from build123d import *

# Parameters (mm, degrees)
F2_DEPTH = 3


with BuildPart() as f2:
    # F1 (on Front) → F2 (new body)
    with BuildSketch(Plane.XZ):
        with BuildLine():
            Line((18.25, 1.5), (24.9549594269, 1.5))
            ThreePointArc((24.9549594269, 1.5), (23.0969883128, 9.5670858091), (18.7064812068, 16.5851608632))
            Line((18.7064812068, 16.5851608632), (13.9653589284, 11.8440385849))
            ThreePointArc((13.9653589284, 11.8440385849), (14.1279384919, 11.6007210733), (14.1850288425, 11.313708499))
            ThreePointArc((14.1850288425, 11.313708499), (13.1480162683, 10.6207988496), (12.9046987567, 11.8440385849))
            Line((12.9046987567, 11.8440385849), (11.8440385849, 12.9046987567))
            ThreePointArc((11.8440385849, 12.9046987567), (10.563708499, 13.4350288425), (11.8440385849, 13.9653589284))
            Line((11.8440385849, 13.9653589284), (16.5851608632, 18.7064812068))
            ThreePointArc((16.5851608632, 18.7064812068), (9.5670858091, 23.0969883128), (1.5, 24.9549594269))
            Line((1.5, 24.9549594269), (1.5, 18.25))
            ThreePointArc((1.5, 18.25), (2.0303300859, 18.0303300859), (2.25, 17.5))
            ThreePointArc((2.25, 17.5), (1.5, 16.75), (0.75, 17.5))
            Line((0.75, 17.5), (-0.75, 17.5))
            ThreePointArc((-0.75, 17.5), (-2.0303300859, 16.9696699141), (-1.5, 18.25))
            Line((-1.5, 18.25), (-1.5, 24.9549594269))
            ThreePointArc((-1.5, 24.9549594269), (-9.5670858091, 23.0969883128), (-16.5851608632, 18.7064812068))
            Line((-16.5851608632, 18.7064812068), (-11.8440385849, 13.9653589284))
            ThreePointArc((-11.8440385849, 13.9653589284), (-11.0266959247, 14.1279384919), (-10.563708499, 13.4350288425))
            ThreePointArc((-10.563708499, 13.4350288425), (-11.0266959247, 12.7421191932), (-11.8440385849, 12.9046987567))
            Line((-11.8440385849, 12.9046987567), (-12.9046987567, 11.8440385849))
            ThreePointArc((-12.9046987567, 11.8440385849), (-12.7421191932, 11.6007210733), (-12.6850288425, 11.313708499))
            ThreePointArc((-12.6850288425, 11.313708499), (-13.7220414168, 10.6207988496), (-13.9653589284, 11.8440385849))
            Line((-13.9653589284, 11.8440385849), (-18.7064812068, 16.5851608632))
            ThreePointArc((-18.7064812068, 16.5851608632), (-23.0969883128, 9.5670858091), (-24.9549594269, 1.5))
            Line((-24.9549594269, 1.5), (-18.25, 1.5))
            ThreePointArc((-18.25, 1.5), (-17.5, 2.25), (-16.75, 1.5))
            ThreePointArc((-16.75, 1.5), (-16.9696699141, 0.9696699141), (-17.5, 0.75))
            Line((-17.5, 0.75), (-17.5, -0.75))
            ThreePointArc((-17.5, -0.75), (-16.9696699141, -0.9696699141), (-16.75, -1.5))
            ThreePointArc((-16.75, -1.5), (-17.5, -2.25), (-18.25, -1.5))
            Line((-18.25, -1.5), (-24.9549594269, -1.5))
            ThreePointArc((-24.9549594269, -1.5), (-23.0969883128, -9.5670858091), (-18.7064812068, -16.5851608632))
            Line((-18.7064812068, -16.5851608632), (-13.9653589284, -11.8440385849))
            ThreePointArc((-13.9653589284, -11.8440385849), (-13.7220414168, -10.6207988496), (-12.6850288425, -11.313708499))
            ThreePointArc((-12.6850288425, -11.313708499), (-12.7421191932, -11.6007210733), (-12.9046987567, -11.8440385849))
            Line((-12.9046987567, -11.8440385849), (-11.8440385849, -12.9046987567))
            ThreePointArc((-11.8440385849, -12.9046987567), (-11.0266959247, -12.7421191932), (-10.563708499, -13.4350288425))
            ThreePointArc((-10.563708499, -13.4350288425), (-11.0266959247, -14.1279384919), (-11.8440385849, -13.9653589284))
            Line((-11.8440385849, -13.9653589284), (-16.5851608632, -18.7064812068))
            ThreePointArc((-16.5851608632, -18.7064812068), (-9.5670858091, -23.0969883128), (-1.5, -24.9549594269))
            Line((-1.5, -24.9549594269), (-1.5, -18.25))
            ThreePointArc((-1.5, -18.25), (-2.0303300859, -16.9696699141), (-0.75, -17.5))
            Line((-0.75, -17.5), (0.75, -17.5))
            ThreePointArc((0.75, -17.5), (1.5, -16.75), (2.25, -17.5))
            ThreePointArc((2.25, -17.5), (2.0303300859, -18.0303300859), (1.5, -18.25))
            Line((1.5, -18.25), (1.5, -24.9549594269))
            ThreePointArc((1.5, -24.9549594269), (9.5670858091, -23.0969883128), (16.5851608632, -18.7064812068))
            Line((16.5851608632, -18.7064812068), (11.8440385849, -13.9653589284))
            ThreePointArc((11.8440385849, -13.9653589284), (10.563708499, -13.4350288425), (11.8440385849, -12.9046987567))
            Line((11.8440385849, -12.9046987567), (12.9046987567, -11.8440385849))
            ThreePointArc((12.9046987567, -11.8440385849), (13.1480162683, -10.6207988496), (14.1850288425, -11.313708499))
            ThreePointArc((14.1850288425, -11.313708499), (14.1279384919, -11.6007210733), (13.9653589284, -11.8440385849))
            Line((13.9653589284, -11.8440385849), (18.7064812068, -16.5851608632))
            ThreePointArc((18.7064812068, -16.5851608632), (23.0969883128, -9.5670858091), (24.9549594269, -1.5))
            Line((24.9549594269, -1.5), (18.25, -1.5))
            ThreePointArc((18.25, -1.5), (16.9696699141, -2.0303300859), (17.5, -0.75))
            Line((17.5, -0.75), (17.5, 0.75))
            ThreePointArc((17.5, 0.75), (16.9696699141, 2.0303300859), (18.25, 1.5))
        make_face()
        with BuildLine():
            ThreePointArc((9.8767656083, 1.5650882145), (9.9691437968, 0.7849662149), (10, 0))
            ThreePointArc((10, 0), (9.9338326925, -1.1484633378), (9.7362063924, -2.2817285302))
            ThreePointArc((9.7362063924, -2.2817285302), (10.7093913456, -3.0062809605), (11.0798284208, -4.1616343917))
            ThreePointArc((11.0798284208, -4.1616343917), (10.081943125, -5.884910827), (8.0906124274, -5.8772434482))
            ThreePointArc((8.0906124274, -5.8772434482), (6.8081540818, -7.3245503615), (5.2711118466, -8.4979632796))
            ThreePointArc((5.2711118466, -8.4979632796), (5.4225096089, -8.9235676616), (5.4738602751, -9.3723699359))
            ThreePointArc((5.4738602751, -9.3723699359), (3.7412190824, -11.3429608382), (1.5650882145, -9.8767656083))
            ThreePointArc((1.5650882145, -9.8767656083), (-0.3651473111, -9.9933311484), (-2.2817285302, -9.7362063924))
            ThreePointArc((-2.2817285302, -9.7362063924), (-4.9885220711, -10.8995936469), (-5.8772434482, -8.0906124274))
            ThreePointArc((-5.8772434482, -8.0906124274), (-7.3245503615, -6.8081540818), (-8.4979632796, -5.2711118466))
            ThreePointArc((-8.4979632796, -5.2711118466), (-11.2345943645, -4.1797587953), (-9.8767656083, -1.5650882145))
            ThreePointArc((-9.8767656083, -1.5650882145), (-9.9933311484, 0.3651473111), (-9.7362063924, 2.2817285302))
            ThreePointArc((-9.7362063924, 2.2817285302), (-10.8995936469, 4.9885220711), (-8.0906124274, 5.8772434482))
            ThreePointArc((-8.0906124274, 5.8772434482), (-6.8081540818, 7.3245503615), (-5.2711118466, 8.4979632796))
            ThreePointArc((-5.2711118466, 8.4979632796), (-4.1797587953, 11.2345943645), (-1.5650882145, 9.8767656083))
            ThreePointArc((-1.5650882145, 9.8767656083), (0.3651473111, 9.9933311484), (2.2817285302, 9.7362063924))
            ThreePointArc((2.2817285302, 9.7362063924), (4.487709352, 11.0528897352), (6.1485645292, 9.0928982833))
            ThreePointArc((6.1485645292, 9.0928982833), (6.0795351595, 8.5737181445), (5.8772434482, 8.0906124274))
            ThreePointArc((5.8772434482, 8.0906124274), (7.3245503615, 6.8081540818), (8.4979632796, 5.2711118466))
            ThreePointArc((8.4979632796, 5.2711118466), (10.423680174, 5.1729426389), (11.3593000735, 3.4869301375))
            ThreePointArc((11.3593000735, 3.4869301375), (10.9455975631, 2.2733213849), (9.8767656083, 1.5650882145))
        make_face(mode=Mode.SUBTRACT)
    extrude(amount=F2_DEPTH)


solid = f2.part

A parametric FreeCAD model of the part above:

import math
import FreeCAD as App
import Part
import Sketcher

doc = App.newDocument("Part")
body = doc.addObject("PartDesign::Body", "Body")

# Sketch on XZ plane
sketch1 = body.newObject("Sketcher::SketchObject", "Sketch")
sketch1.AttachmentSupport = (doc.getObject("XZ_Plane"), [""])
sketch1.MapMode = "FlatFace"
sketch1.addGeometry(Part.LineSegment(App.Vector(18.2, 1.5, 0), App.Vector(25, 1.5, 0)), False)
sketch1.addGeometry(Part.ArcOfCircle(Part.Circle(App.Vector(0, 0, 0), App.Vector(0, 0, 1), 25), math.radians(3), math.radians(42)), False)
sketch1.addGeometry(Part.LineSegment(App.Vector(18.7, 16.6, 0), App.Vector(14, 11.8, 0)), False)
sketch1.addGeometry(Part.ArcOfCircle(Part.Circle(App.Vector(13.4, 11.3, 0), App.Vector(0, 0, 1), 0.8), math.radians(0), math.radians(45)), False)
sketch1.addGeometry(Part.ArcOfCircle(Part.Circle(App.Vector(13.4, 11.3, 0), App.Vector(0, 0, 1), 0.8), math.radians(135), math.radians(360)), False)
sketch1.addGeometry(Part.LineSegment(App.Vector(12.9, 11.8, 0), App.Vector(11.8, 12.9, 0)), False)
sketch1.addGeometry(Part.ArcOfCircle(Part.Circle(App.Vector(11.3, 13.4, 0), App.Vector(0, 0, 1), 0.8), math.radians(45), math.radians(315)), False)
sketch1.addGeometry(Part.LineSegment(App.Vector(11.8, 14, 0), App.Vector(16.6, 18.7, 0)), False)
sketch1.addGeometry(Part.ArcOfCircle(Part.Circle(App.Vector(0, 0, 0), App.Vector(0, 0, 1), 25), math.radians(48), math.radians(87)), False)
sketch1.addGeometry(Part.LineSegment(App.Vector(1.5, 25, 0), App.Vector(1.5, 18.2, 0)), False)
sketch1.addGeometry(Part.ArcOfCircle(Part.Circle(App.Vector(1.5, 17.5, 0), App.Vector(0, 0, 1), 0.8), math.radians(0), math.radians(90)), False)
sketch1.addGeometry(Part.ArcOfCircle(Part.Circle(App.Vector(1.5, 17.5, 0), App.Vector(0, 0, 1), 0.8), math.radians(180), math.radians(360)), False)
sketch1.addGeometry(Part.LineSegment(App.Vector(0.8, 17.5, 0), App.Vector(-0.8, 17.5, 0)), False)
sketch1.addGeometry(Part.ArcOfCircle(Part.Circle(App.Vector(-1.5, 17.5, 0), App.Vector(0, 0, 1), 0.8), math.radians(90), math.radians(360)), False)
sketch1.addGeometry(Part.LineSegment(App.Vector(-1.5, 18.2, 0), App.Vector(-1.5, 25, 0)), False)
sketch1.addGeometry(Part.ArcOfCircle(Part.Circle(App.Vector(0, 0, 0), App.Vector(0, 0, 1), 25), math.radians(93), math.radians(132)), False)
sketch1.addGeometry(Part.LineSegment(App.Vector(-16.6, 18.7, 0), App.Vector(-11.8, 14, 0)), False)
sketch1.addGeometry(Part.ArcOfCircle(Part.Circle(App.Vector(-11.3, 13.4, 0), App.Vector(0, 0, 1), 0.8), math.radians(0), math.radians(135)), False)
sketch1.addGeometry(Part.ArcOfCircle(Part.Circle(App.Vector(-11.3, 13.4, 0), App.Vector(0, 0, 1), 0.8), math.radians(-135), math.radians(0)), False)
sketch1.addGeometry(Part.LineSegment(App.Vector(-11.8, 12.9, 0), App.Vector(-12.9, 11.8, 0)), False)
sketch1.addGeometry(Part.ArcOfCircle(Part.Circle(App.Vector(-13.4, 11.3, 0), App.Vector(0, 0, 1), 0.8), math.radians(0), math.radians(45)), False)
sketch1.addGeometry(Part.ArcOfCircle(Part.Circle(App.Vector(-13.4, 11.3, 0), App.Vector(0, 0, 1), 0.8), math.radians(135), math.radians(360)), False)
sketch1.addGeometry(Part.LineSegment(App.Vector(-14, 11.8, 0), App.Vector(-18.7, 16.6, 0)), False)
sketch1.addGeometry(Part.ArcOfCircle(Part.Circle(App.Vector(0, 0, 0), App.Vector(0, 0, 1), 25), math.radians(138), math.radians(177)), False)
sketch1.addGeometry(Part.LineSegment(App.Vector(-25, 1.5, 0), App.Vector(-18.2, 1.5, 0)), False)
sketch1.addGeometry(Part.ArcOfCircle(Part.Circle(App.Vector(-17.5, 1.5, 0), App.Vector(0, 0, 1), 0.8), math.radians(0), math.radians(180)), False)
sketch1.addGeometry(Part.ArcOfCircle(Part.Circle(App.Vector(-17.5, 1.5, 0), App.Vector(0, 0, 1), 0.8), math.radians(-90), math.radians(0)), False)
sketch1.addGeometry(Part.LineSegment(App.Vector(-17.5, 0.8, 0), App.Vector(-17.5, -0.8, 0)), False)
sketch1.addGeometry(Part.ArcOfCircle(Part.Circle(App.Vector(-17.5, -1.5, 0), App.Vector(0, 0, 1), 0.8), math.radians(0), math.radians(90)), False)
sketch1.addGeometry(Part.ArcOfCircle(Part.Circle(App.Vector(-17.5, -1.5, 0), App.Vector(0, 0, 1), 0.8), math.radians(180), math.radians(360)), False)
sketch1.addGeometry(Part.LineSegment(App.Vector(-18.2, -1.5, 0), App.Vector(-25, -1.5, 0)), False)
sketch1.addGeometry(Part.ArcOfCircle(Part.Circle(App.Vector(0, 0, 0), App.Vector(0, 0, 1), 25), math.radians(-177), math.radians(-138)), False)
sketch1.addGeometry(Part.LineSegment(App.Vector(-18.7, -16.6, 0), App.Vector(-14, -11.8, 0)), False)
sketch1.addGeometry(Part.ArcOfCircle(Part.Circle(App.Vector(-13.4, -11.3, 0), App.Vector(0, 0, 1), 0.8), math.radians(0), math.radians(225)), False)
sketch1.addGeometry(Part.ArcOfCircle(Part.Circle(App.Vector(-13.4, -11.3, 0), App.Vector(0, 0, 1), 0.8), math.radians(-45), math.radians(0)), False)
sketch1.addGeometry(Part.LineSegment(App.Vector(-12.9, -11.8, 0), App.Vector(-11.8, -12.9, 0)), False)
sketch1.addGeometry(Part.ArcOfCircle(Part.Circle(App.Vector(-11.3, -13.4, 0), App.Vector(0, 0, 1), 0.8), math.radians(0), math.radians(135)), False)
sketch1.addGeometry(Part.ArcOfCircle(Part.Circle(App.Vector(-11.3, -13.4, 0), App.Vector(0, 0, 1), 0.8), math.radians(-135), math.radians(0)), False)
sketch1.addGeometry(Part.LineSegment(App.Vector(-11.8, -14, 0), App.Vector(-16.6, -18.7, 0)), False)
sketch1.addGeometry(Part.ArcOfCircle(Part.Circle(App.Vector(0, 0, 0), App.Vector(0, 0, 1), 25), math.radians(-132), math.radians(-93)), False)
sketch1.addGeometry(Part.LineSegment(App.Vector(-1.5, -25, 0), App.Vector(-1.5, -18.2, 0)), False)
sketch1.addGeometry(Part.ArcOfCircle(Part.Circle(App.Vector(-1.5, -17.5, 0), App.Vector(0, 0, 1), 0.8), math.radians(0), math.radians(270)), False)
sketch1.addGeometry(Part.LineSegment(App.Vector(-0.8, -17.5, 0), App.Vector(0.8, -17.5, 0)), False)
sketch1.addGeometry(Part.ArcOfCircle(Part.Circle(App.Vector(1.5, -17.5, 0), App.Vector(0, 0, 1), 0.8), math.radians(0), math.radians(180)), False)
sketch1.addGeometry(Part.ArcOfCircle(Part.Circle(App.Vector(1.5, -17.5, 0), App.Vector(0, 0, 1), 0.8), math.radians(-90), math.radians(0)), False)
sketch1.addGeometry(Part.LineSegment(App.Vector(1.5, -18.2, 0), App.Vector(1.5, -25, 0)), False)
sketch1.addGeometry(Part.ArcOfCircle(Part.Circle(App.Vector(0, 0, 0), App.Vector(0, 0, 1), 25), math.radians(-87), math.radians(-48)), False)
sketch1.addGeometry(Part.LineSegment(App.Vector(16.6, -18.7, 0), App.Vector(11.8, -14, 0)), False)
sketch1.addGeometry(Part.ArcOfCircle(Part.Circle(App.Vector(11.3, -13.4, 0), App.Vector(0, 0, 1), 0.8), math.radians(45), math.radians(315)), False)
sketch1.addGeometry(Part.LineSegment(App.Vector(11.8, -12.9, 0), App.Vector(12.9, -11.8, 0)), False)
sketch1.addGeometry(Part.ArcOfCircle(Part.Circle(App.Vector(13.4, -11.3, 0), App.Vector(0, 0, 1), 0.8), math.radians(0), math.radians(225)), False)
sketch1.addGeometry(Part.ArcOfCircle(Part.Circle(App.Vector(13.4, -11.3, 0), App.Vector(0, 0, 1), 0.8), math.radians(-45), math.radians(0)), False)
sketch1.addGeometry(Part.LineSegment(App.Vector(14, -11.8, 0), App.Vector(18.7, -16.6, 0)), False)
sketch1.addGeometry(Part.ArcOfCircle(Part.Circle(App.Vector(0, 0, 0), App.Vector(0, 0, 1), 25), math.radians(-42), math.radians(-3)), False)
sketch1.addGeometry(Part.LineSegment(App.Vector(25, -1.5, 0), App.Vector(18.2, -1.5, 0)), False)
sketch1.addGeometry(Part.ArcOfCircle(Part.Circle(App.Vector(17.5, -1.5, 0), App.Vector(0, 0, 1), 0.8), math.radians(90), math.radians(360)), False)
sketch1.addGeometry(Part.LineSegment(App.Vector(17.5, -0.8, 0), App.Vector(17.5, 0.8, 0)), False)
sketch1.addGeometry(Part.ArcOfCircle(Part.Circle(App.Vector(17.5, 1.5, 0), App.Vector(0, 0, 1), 0.8), math.radians(0), math.radians(270)), False)
sketch1.addGeometry(Part.ArcOfCircle(Part.Circle(App.Vector(9.4, 3.5, 0), App.Vector(0, 0, 1), 2), math.radians(-75), math.radians(0)), False)
sketch1.addGeometry(Part.ArcOfCircle(Part.Circle(App.Vector(0, 0, 0), App.Vector(0, 0, 1), 10), math.radians(0), math.radians(9)), False)
sketch1.addGeometry(Part.ArcOfCircle(Part.Circle(App.Vector(0, 0, 0), App.Vector(0, 0, 1), 10), math.radians(-13.19), math.radians(0)), False)
sketch1.addGeometry(Part.ArcOfCircle(Part.Circle(App.Vector(9.1, -4.2, 0), App.Vector(0, 0, 1), 2), math.radians(0), math.radians(71)), False)
sketch1.addGeometry(Part.ArcOfCircle(Part.Circle(App.Vector(9.1, -4.2, 0), App.Vector(0, 0, 1), 2), math.radians(-120), math.radians(0)), False)
sketch1.addGeometry(Part.ArcOfCircle(Part.Circle(App.Vector(0, 0, 0), App.Vector(0, 0, 1), 10), math.radians(-58), math.radians(-36)), False)
sketch1.addGeometry(Part.ArcOfCircle(Part.Circle(App.Vector(3.5, -9.4, 0), App.Vector(0, 0, 1), 2), math.radians(0), math.radians(26)), False)
sketch1.addGeometry(Part.ArcOfCircle(Part.Circle(App.Vector(3.5, -9.4, 0), App.Vector(0, 0, 1), 2), math.radians(-165), math.radians(0)), False)
sketch1.addGeometry(Part.ArcOfCircle(Part.Circle(App.Vector(0, 0, 0), App.Vector(0, 0, 1), 10), math.radians(-103), math.radians(-81)), False)
sketch1.addGeometry(Part.ArcOfCircle(Part.Circle(App.Vector(-4.2, -9.1, 0), App.Vector(0, 0, 1), 2), math.radians(150), math.radians(341)), False)
sketch1.addGeometry(Part.ArcOfCircle(Part.Circle(App.Vector(0, 0, 0), App.Vector(0, 0, 1), 10), math.radians(-148), math.radians(-126)), False)
sketch1.addGeometry(Part.ArcOfCircle(Part.Circle(App.Vector(-9.4, -3.5, 0), App.Vector(0, 0, 1), 2), math.radians(105), math.radians(296)), False)
sketch1.addGeometry(Part.ArcOfCircle(Part.Circle(App.Vector(0, 0, 0), App.Vector(0, 0, 1), 10), math.radians(167), math.radians(189)), False)
sketch1.addGeometry(Part.ArcOfCircle(Part.Circle(App.Vector(-9.1, 4.2, 0), App.Vector(0, 0, 1), 2), math.radians(60), math.radians(251)), False)
sketch1.addGeometry(Part.ArcOfCircle(Part.Circle(App.Vector(0, 0, 0), App.Vector(0, 0, 1), 10), math.radians(122), math.radians(144)), False)
sketch1.addGeometry(Part.ArcOfCircle(Part.Circle(App.Vector(-3.5, 9.4, 0), App.Vector(0, 0, 1), 2), math.radians(15), math.radians(206)), False)
sketch1.addGeometry(Part.ArcOfCircle(Part.Circle(App.Vector(0, 0, 0), App.Vector(0, 0, 1), 10), math.radians(77), math.radians(99)), False)
sketch1.addGeometry(Part.ArcOfCircle(Part.Circle(App.Vector(4.2, 9.1, 0), App.Vector(0, 0, 1), 2), math.radians(0), math.radians(161)), False)
sketch1.addGeometry(Part.ArcOfCircle(Part.Circle(App.Vector(4.2, 9.1, 0), App.Vector(0, 0, 1), 2), math.radians(-30), math.radians(0)), False)
sketch1.addGeometry(Part.ArcOfCircle(Part.Circle(App.Vector(0, 0, 0), App.Vector(0, 0, 1), 10), math.radians(32), math.radians(54)), False)
sketch1.addGeometry(Part.ArcOfCircle(Part.Circle(App.Vector(9.4, 3.5, 0), App.Vector(0, 0, 1), 2), math.radians(0), math.radians(116)), False)
sketch1.addConstraint(Sketcher.Constraint("Coincident", 0, 2, 1, 1))
sketch1.addConstraint(Sketcher.Constraint("Coincident", 1, 2, 2, 1))
sketch1.addConstraint(Sketcher.Constraint("Coincident", 2, 2, 3, 2))
sketch1.addConstraint(Sketcher.Constraint("Tangent", 3, 1, 4, 2))
sketch1.addConstraint(Sketcher.Constraint("Coincident", 4, 1, 5, 1))
sketch1.addConstraint(Sketcher.Constraint("Coincident", 5, 2, 6, 2))
sketch1.addConstraint(Sketcher.Constraint("Coincident", 6, 1, 7, 1))
sketch1.addConstraint(Sketcher.Constraint("Coincident", 7, 2, 8, 1))
sketch1.addConstraint(Sketcher.Constraint("Coincident", 8, 2, 9, 1))
sketch1.addConstraint(Sketcher.Constraint("Coincident", 9, 2, 10, 2))
sketch1.addConstraint(Sketcher.Constraint("Tangent", 10, 1, 11, 2))
sketch1.addConstraint(Sketcher.Constraint("Coincident", 11, 1, 12, 1))
sketch1.addConstraint(Sketcher.Constraint("Coincident", 12, 2, 13, 2))
sketch1.addConstraint(Sketcher.Constraint("Coincident", 13, 1, 14, 1))
sketch1.addConstraint(Sketcher.Constraint("Coincident", 14, 2, 15, 1))
sketch1.addConstraint(Sketcher.Constraint("Coincident", 15, 2, 16, 1))
sketch1.addConstraint(Sketcher.Constraint("Coincident", 16, 2, 17, 2))
sketch1.addConstraint(Sketcher.Constraint("Tangent", 17, 1, 18, 2))
sketch1.addConstraint(Sketcher.Constraint("Coincident", 18, 1, 19, 1))
sketch1.addConstraint(Sketcher.Constraint("Coincident", 19, 2, 20, 2))
sketch1.addConstraint(Sketcher.Constraint("Tangent", 20, 1, 21, 2))
sketch1.addConstraint(Sketcher.Constraint("Coincident", 21, 1, 22, 1))
sketch1.addConstraint(Sketcher.Constraint("Coincident", 22, 2, 23, 1))
sketch1.addConstraint(Sketcher.Constraint("Coincident", 23, 2, 24, 1))
sketch1.addConstraint(Sketcher.Constraint("Coincident", 24, 2, 25, 2))
sketch1.addConstraint(Sketcher.Constraint("Tangent", 25, 1, 26, 2))
sketch1.addConstraint(Sketcher.Constraint("Coincident", 26, 1, 27, 1))
sketch1.addConstraint(Sketcher.Constraint("Coincident", 27, 2, 28, 2))
sketch1.addConstraint(Sketcher.Constraint("Tangent", 28, 1, 29, 2))
sketch1.addConstraint(Sketcher.Constraint("Coincident", 29, 1, 30, 1))
sketch1.addConstraint(Sketcher.Constraint("Coincident", 30, 2, 31, 1))
sketch1.addConstraint(Sketcher.Constraint("Coincident", 31, 2, 32, 1))
sketch1.addConstraint(Sketcher.Constraint("Coincident", 32, 2, 33, 2))
sketch1.addConstraint(Sketcher.Constraint("Tangent", 33, 1, 34, 2))
sketch1.addConstraint(Sketcher.Constraint("Coincident", 34, 1, 35, 1))
sketch1.addConstraint(Sketcher.Constraint("Coincident", 35, 2, 36, 2))
sketch1.addConstraint(Sketcher.Constraint("Tangent", 36, 1, 37, 2))
sketch1.addConstraint(Sketcher.Constraint("Coincident", 37, 1, 38, 1))
sketch1.addConstraint(Sketcher.Constraint("Coincident", 38, 2, 39, 1))
sketch1.addConstraint(Sketcher.Constraint("Coincident", 39, 2, 40, 1))
sketch1.addConstraint(Sketcher.Constraint("Coincident", 40, 2, 41, 2))
sketch1.addConstraint(Sketcher.Constraint("Coincident", 41, 1, 42, 1))
sketch1.addConstraint(Sketcher.Constraint("Coincident", 42, 2, 43, 2))
sketch1.addConstraint(Sketcher.Constraint("Tangent", 43, 1, 44, 2))
sketch1.addConstraint(Sketcher.Constraint("Coincident", 44, 1, 45, 1))
sketch1.addConstraint(Sketcher.Constraint("Coincident", 45, 2, 46, 1))
sketch1.addConstraint(Sketcher.Constraint("Coincident", 46, 2, 47, 1))
sketch1.addConstraint(Sketcher.Constraint("Coincident", 47, 2, 48, 2))
sketch1.addConstraint(Sketcher.Constraint("Coincident", 48, 1, 49, 1))
sketch1.addConstraint(Sketcher.Constraint("Coincident", 49, 2, 50, 2))
sketch1.addConstraint(Sketcher.Constraint("Tangent", 50, 1, 51, 2))
sketch1.addConstraint(Sketcher.Constraint("Coincident", 51, 1, 52, 1))
sketch1.addConstraint(Sketcher.Constraint("Coincident", 52, 2, 53, 1))
sketch1.addConstraint(Sketcher.Constraint("Coincident", 53, 2, 54, 1))
sketch1.addConstraint(Sketcher.Constraint("Coincident", 54, 2, 55, 2))
sketch1.addConstraint(Sketcher.Constraint("Coincident", 55, 1, 56, 1))
sketch1.addConstraint(Sketcher.Constraint("Coincident", 56, 2, 57, 2))
sketch1.addConstraint(Sketcher.Constraint("Coincident", 57, 1, 0, 1))
sketch1.addConstraint(Sketcher.Constraint("Coincident", 58, 1, 59, 2))
sketch1.addConstraint(Sketcher.Constraint("Tangent", 59, 1, 60, 2))
sketch1.addConstraint(Sketcher.Constraint("Coincident", 60, 1, 61, 2))
sketch1.addConstraint(Sketcher.Constraint("Tangent", 61, 1, 62, 2))
sketch1.addConstraint(Sketcher.Constraint("Coincident", 62, 1, 63, 2))
sketch1.addConstraint(Sketcher.Constraint("Coincident", 63, 1, 64, 2))
sketch1.addConstraint(Sketcher.Constraint("Tangent", 64, 1, 65, 2))
sketch1.addConstraint(Sketcher.Constraint("Coincident", 65, 1, 66, 2))
sketch1.addConstraint(Sketcher.Constraint("Coincident", 66, 1, 67, 2))
sketch1.addConstraint(Sketcher.Constraint("Coincident", 67, 1, 68, 2))
sketch1.addConstraint(Sketcher.Constraint("Coincident", 68, 1, 69, 2))
sketch1.addConstraint(Sketcher.Constraint("Coincident", 69, 1, 70, 2))
sketch1.addConstraint(Sketcher.Constraint("Coincident", 70, 1, 71, 2))
sketch1.addConstraint(Sketcher.Constraint("Coincident", 71, 1, 72, 2))
sketch1.addConstraint(Sketcher.Constraint("Coincident", 72, 1, 73, 2))
sketch1.addConstraint(Sketcher.Constraint("Coincident", 73, 1, 74, 2))
sketch1.addConstraint(Sketcher.Constraint("Coincident", 74, 1, 75, 2))
sketch1.addConstraint(Sketcher.Constraint("Tangent", 75, 1, 76, 2))
sketch1.addConstraint(Sketcher.Constraint("Coincident", 76, 1, 77, 2))
sketch1.addConstraint(Sketcher.Constraint("Coincident", 77, 1, 78, 2))
sketch1.addConstraint(Sketcher.Constraint("Tangent", 78, 1, 58, 2))
sketch1.addConstraint(Sketcher.Constraint("Horizontal", 0))
sketch1.addConstraint(Sketcher.Constraint("Vertical", 9))
sketch1.addConstraint(Sketcher.Constraint("Horizontal", 12))
sketch1.addConstraint(Sketcher.Constraint("Vertical", 14))
sketch1.addConstraint(Sketcher.Constraint("Horizontal", 24))
sketch1.addConstraint(Sketcher.Constraint("Vertical", 27))
sketch1.addConstraint(Sketcher.Constraint("Horizontal", 30))
sketch1.addConstraint(Sketcher.Constraint("Vertical", 40))
sketch1.addConstraint(Sketcher.Constraint("Horizontal", 42))
sketch1.addConstraint(Sketcher.Constraint("Vertical", 45))
sketch1.addConstraint(Sketcher.Constraint("Horizontal", 54))
sketch1.addConstraint(Sketcher.Constraint("Vertical", 56))
sketch1.addConstraint(Sketcher.Constraint("Coincident", 1, 3, -1, 1))
sketch1.addConstraint(Sketcher.Constraint("Coincident", 8, 3, -1, 1))
sketch1.addConstraint(Sketcher.Constraint("Coincident", 15, 3, -1, 1))
sketch1.addConstraint(Sketcher.Constraint("Coincident", 23, 3, -1, 1))
sketch1.addConstraint(Sketcher.Constraint("Coincident", 31, 3, -1, 1))
sketch1.addConstraint(Sketcher.Constraint("Coincident", 39, 3, -1, 1))
sketch1.addConstraint(Sketcher.Constraint("Coincident", 46, 3, -1, 1))
sketch1.addConstraint(Sketcher.Constraint("Coincident", 53, 3, -1, 1))
sketch1.addConstraint(Sketcher.Constraint("Coincident", 59, 3, -1, 1))
sketch1.addConstraint(Sketcher.Constraint("Coincident", 63, 3, -1, 1))
sketch1.addConstraint(Sketcher.Constraint("Coincident", 66, 3, -1, 1))
sketch1.addConstraint(Sketcher.Constraint("Coincident", 68, 3, -1, 1))
sketch1.addConstraint(Sketcher.Constraint("Coincident", 70, 3, -1, 1))
sketch1.addConstraint(Sketcher.Constraint("Coincident", 72, 3, -1, 1))
sketch1.addConstraint(Sketcher.Constraint("Coincident", 74, 3, -1, 1))
sketch1.addConstraint(Sketcher.Constraint("Coincident", 77, 3, -1, 1))
sketch1.addConstraint(Sketcher.Constraint("Equal", 3, 4))
sketch1.addConstraint(Sketcher.Constraint("Equal", 4, 6))
sketch1.addConstraint(Sketcher.Constraint("Equal", 1, 8))
sketch1.addConstraint(Sketcher.Constraint("Equal", 6, 10))
sketch1.addConstraint(Sketcher.Constraint("Equal", 10, 11))
sketch1.addConstraint(Sketcher.Constraint("Equal", 11, 13))
sketch1.addConstraint(Sketcher.Constraint("Equal", 8, 15))
sketch1.addConstraint(Sketcher.Constraint("Equal", 13, 17))
sketch1.addConstraint(Sketcher.Constraint("Equal", 17, 18))
sketch1.addConstraint(Sketcher.Constraint("Equal", 18, 20))
sketch1.addConstraint(Sketcher.Constraint("Equal", 20, 21))
sketch1.addConstraint(Sketcher.Constraint("Equal", 15, 23))
sketch1.addConstraint(Sketcher.Constraint("Equal", 21, 25))
sketch1.addConstraint(Sketcher.Constraint("Equal", 25, 26))
sketch1.addConstraint(Sketcher.Constraint("Equal", 26, 28))
sketch1.addConstraint(Sketcher.Constraint("Equal", 28, 29))
sketch1.addConstraint(Sketcher.Constraint("Equal", 23, 31))
sketch1.addConstraint(Sketcher.Constraint("Equal", 29, 33))
sketch1.addConstraint(Sketcher.Constraint("Equal", 33, 34))
sketch1.addConstraint(Sketcher.Constraint("Equal", 34, 36))
sketch1.addConstraint(Sketcher.Constraint("Equal", 36, 37))
sketch1.addConstraint(Sketcher.Constraint("Equal", 31, 39))
sketch1.addConstraint(Sketcher.Constraint("Equal", 37, 41))
sketch1.addConstraint(Sketcher.Constraint("Equal", 41, 43))
sketch1.addConstraint(Sketcher.Constraint("Equal", 43, 44))
sketch1.addConstraint(Sketcher.Constraint("Equal", 39, 46))
sketch1.addConstraint(Sketcher.Constraint("Equal", 44, 48))
sketch1.addConstraint(Sketcher.Constraint("Equal", 48, 50))
sketch1.addConstraint(Sketcher.Constraint("Equal", 50, 51))
sketch1.addConstraint(Sketcher.Constraint("Equal", 46, 53))
sketch1.addConstraint(Sketcher.Constraint("Equal", 51, 55))
sketch1.addConstraint(Sketcher.Constraint("Equal", 55, 57))
sketch1.addConstraint(Sketcher.Constraint("Equal", 59, 60))
sketch1.addConstraint(Sketcher.Constraint("Equal", 58, 61))
sketch1.addConstraint(Sketcher.Constraint("Equal", 61, 62))
sketch1.addConstraint(Sketcher.Constraint("Equal", 60, 63))
sketch1.addConstraint(Sketcher.Constraint("Equal", 62, 64))
sketch1.addConstraint(Sketcher.Constraint("Equal", 64, 65))
sketch1.addConstraint(Sketcher.Constraint("Equal", 63, 66))
sketch1.addConstraint(Sketcher.Constraint("Equal", 65, 67))
sketch1.addConstraint(Sketcher.Constraint("Equal", 66, 68))
sketch1.addConstraint(Sketcher.Constraint("Equal", 67, 69))
sketch1.addConstraint(Sketcher.Constraint("Equal", 68, 70))
sketch1.addConstraint(Sketcher.Constraint("Equal", 69, 71))
sketch1.addConstraint(Sketcher.Constraint("Equal", 70, 72))
sketch1.addConstraint(Sketcher.Constraint("Equal", 71, 73))
sketch1.addConstraint(Sketcher.Constraint("Equal", 72, 74))
sketch1.addConstraint(Sketcher.Constraint("Equal", 73, 75))
sketch1.addConstraint(Sketcher.Constraint("Equal", 75, 76))
sketch1.addConstraint(Sketcher.Constraint("Equal", 74, 77))
sketch1.addConstraint(Sketcher.Constraint("Equal", 76, 78))
sketch1.addConstraint(Sketcher.Constraint("Symmetric", 3, 3, 33, 3, -1, 1))
sketch1.addConstraint(Sketcher.Constraint("Symmetric", 6, 3, 36, 3, -1, 1))
sketch1.addConstraint(Sketcher.Constraint("Symmetric", 10, 3, 41, 3, -1, 1))
sketch1.addConstraint(Sketcher.Constraint("Symmetric", 13, 3, 43, 3, -1, 1))
sketch1.addConstraint(Sketcher.Constraint("Symmetric", 17, 3, 48, 3, -1, 1))
sketch1.addConstraint(Sketcher.Constraint("Symmetric", 20, 3, 50, 3, -1, 1))
sketch1.addConstraint(Sketcher.Constraint("Symmetric", 25, 3, 55, 3, -1, 1))
sketch1.addConstraint(Sketcher.Constraint("Symmetric", 28, 3, 57, 3, -1, 1))
sketch1.addConstraint(Sketcher.Constraint("Symmetric", 58, 3, 69, 3, -1, 1))
sketch1.addConstraint(Sketcher.Constraint("Symmetric", 61, 3, 71, 3, -1, 1))
sketch1.addConstraint(Sketcher.Constraint("Symmetric", 64, 3, 73, 3, -1, 1))
sketch1.addConstraint(Sketcher.Constraint("Symmetric", 67, 3, 75, 3, -1, 1))
sketch1.addConstraint(Sketcher.Constraint("Symmetric", 10, 3, 13, 3, -2))
sketch1.addConstraint(Sketcher.Constraint("Symmetric", 6, 3, 17, 3, -2))
sketch1.addConstraint(Sketcher.Constraint("Symmetric", 3, 3, 20, 3, -2))
sketch1.addConstraint(Sketcher.Constraint("Symmetric", 28, 3, 55, 3, -2))
sketch1.addConstraint(Sketcher.Constraint("PointOnObject", 59, 1, -1))
sketch1.addConstraint(Sketcher.Constraint("Perpendicular", 2, 5))
sketch1.addConstraint(Sketcher.Constraint("Perpendicular", 5, 7))
sketch1.addConstraint(Sketcher.Constraint("Perpendicular", 7, 16))
sketch1.addConstraint(Sketcher.Constraint("Perpendicular", 16, 19))
sketch1.addConstraint(Sketcher.Constraint("Perpendicular", 19, 22))
sketch1.addConstraint(Sketcher.Constraint("Perpendicular", 22, 32))
sketch1.addConstraint(Sketcher.Constraint("Perpendicular", 32, 35))
sketch1.addConstraint(Sketcher.Constraint("Perpendicular", 35, 38))
sketch1.addConstraint(Sketcher.Constraint("Perpendicular", 38, 47))
sketch1.addConstraint(Sketcher.Constraint("Perpendicular", 47, 49))
sketch1.addConstraint(Sketcher.Constraint("Perpendicular", 49, 52))
sketch1.addConstraint(Sketcher.Constraint("Horizontal", 57, 3, 0, 2))
sketch1.addConstraint(Sketcher.Constraint("Horizontal", 21, 3, 3, 1))
sketch1.addConstraint(Sketcher.Constraint("Horizontal", 2, 2, 4, 1))
sketch1.addConstraint(Sketcher.Constraint("Horizontal", 13, 3, 10, 1))
sketch1.addConstraint(Sketcher.Constraint("Horizontal", 10, 1, 11, 1))
sketch1.addConstraint(Sketcher.Constraint("Horizontal", 8, 2, 14, 2))
sketch1.addConstraint(Sketcher.Constraint("Horizontal", 7, 2, 15, 2))
sketch1.addConstraint(Sketcher.Constraint("Horizontal", 6, 1, 16, 2))
sketch1.addConstraint(Sketcher.Constraint("Horizontal", 18, 3, 17, 1))
sketch1.addConstraint(Sketcher.Constraint("Horizontal", 5, 2, 18, 1))
sketch1.addConstraint(Sketcher.Constraint("Horizontal", 3, 1, 20, 1))
sketch1.addConstraint(Sketcher.Constraint("Horizontal", 19, 2, 21, 1))
sketch1.addConstraint(Sketcher.Constraint("Horizontal", 0, 2, 23, 2))
sketch1.addConstraint(Sketcher.Constraint("Horizontal", 24, 2, 25, 1))
sketch1.addConstraint(Sketcher.Constraint("Horizontal", 55, 3, 28, 1))
sketch1.addConstraint(Sketcher.Constraint("Horizontal", 28, 1, 29, 1))
sketch1.addConstraint(Sketcher.Constraint("Horizontal", 51, 3, 33, 1))
sketch1.addConstraint(Sketcher.Constraint("Horizontal", 32, 2, 34, 1))
sketch1.addConstraint(Sketcher.Constraint("Horizontal", 48, 3, 36, 1))
sketch1.addConstraint(Sketcher.Constraint("Horizontal", 44, 3, 41, 1))
sketch1.addConstraint(Sketcher.Constraint("Horizontal", 42, 2, 43, 1))
sketch1.addConstraint(Sketcher.Constraint("Horizontal", 39, 2, 45, 2))
sketch1.addConstraint(Sketcher.Constraint("Horizontal", 38, 2, 46, 2))
sketch1.addConstraint(Sketcher.Constraint("Horizontal", 35, 2, 48, 1))
sketch1.addConstraint(Sketcher.Constraint("Horizontal", 33, 1, 50, 1))
sketch1.addConstraint(Sketcher.Constraint("Horizontal", 49, 2, 51, 1))
sketch1.addConstraint(Sketcher.Constraint("Horizontal", 30, 2, 53, 2))
sketch1.addConstraint(Sketcher.Constraint("Horizontal", 62, 3, 61, 1))
sketch1.addConstraint(Sketcher.Constraint("Horizontal", 65, 3, 64, 1))
sketch1.addConstraint(Sketcher.Constraint("Horizontal", 76, 3, 75, 1))
sketch1.addConstraint(Sketcher.Constraint("Horizontal", 58, 3, 78, 1))
sketch1.addConstraint(Sketcher.Constraint("Vertical", 5, 2, 6, 1))
sketch1.addConstraint(Sketcher.Constraint("Vertical", 44, 3, 8, 2))
sketch1.addConstraint(Sketcher.Constraint("Vertical", 29, 3, 26, 1))
sketch1.addConstraint(Sketcher.Constraint("Vertical", 22, 2, 31, 2))
sketch1.addConstraint(Sketcher.Constraint("Vertical", 35, 2, 37, 1))
sketch1.addConstraint(Sketcher.Constraint("Vertical", 14, 2, 39, 2))
sketch1.addConstraint(Sketcher.Constraint("Vertical", 57, 3, 55, 1))
sketch1.addConstraint(Sketcher.Constraint("Equal", 54, 9))
sketch1.addConstraint(Sketcher.Constraint("Equal", 42, 27))
sketch1.addConstraint(Sketcher.Constraint("Equal", 2, 7))
sketch1.addConstraint(Sketcher.Constraint("Radius", 1, 25.0))
sketch1.addConstraint(Sketcher.Constraint("Radius", 59, 10.0))
sketch1.addConstraint(Sketcher.Constraint("Radius", 3, 0.75))
sketch1.addConstraint(Sketcher.Constraint("DistanceX", 12, 2, 12, 1, 1.5))
sketch1.addConstraint(Sketcher.Constraint("Distance", 5, 1.5))
sketch1.addConstraint(Sketcher.Constraint("DistanceY", -1, 1, 10, 3, 17.5))
sketch1.addConstraint(Sketcher.Constraint("Radius", 58, 1.98693))
sketch1.addConstraint(Sketcher.Constraint("DistanceX", -1, 1, 61, 3, 9.092898))
sketch1.addConstraint(Sketcher.Constraint("DistanceY", 67, 3, -1, 1, 9.092898))
sketch1.addConstraint(Sketcher.Constraint("DistanceX", -1, 1, 4, 1, 12.904699))
sketch1.addConstraint(Sketcher.Constraint("DistanceY", -1, 1, 5, 2, 12.904699))
sketch1.addConstraint(Sketcher.Constraint("DistanceX", -1, 1, 78, 1, 11.3593))
sketch1.addConstraint(Sketcher.Constraint("Distance", 2, 6.704959))
sketch1.addConstraint(Sketcher.Constraint("DistanceY", -1, 1, 58, 3, 3.48693))
sketch1.addConstraint(Sketcher.Constraint("DistanceX", -1, 1, 64, 3, 3.48693))
sketch1.addConstraint(Sketcher.Constraint("DistanceY", 64, 3, -1, 1, 9.37237))
sketch1.addConstraint(Sketcher.Constraint("DistanceY", 60, 1, -1, 1, 2.281729))
sketch1.addConstraint(Sketcher.Constraint("DistanceX", 66, 1, -1, 1, 2.281729))
pad1 = body.newObject("PartDesign::Pad", "Pad")
pad1.Profile = sketch1
pad1.Length = 3

doc.recompute()
